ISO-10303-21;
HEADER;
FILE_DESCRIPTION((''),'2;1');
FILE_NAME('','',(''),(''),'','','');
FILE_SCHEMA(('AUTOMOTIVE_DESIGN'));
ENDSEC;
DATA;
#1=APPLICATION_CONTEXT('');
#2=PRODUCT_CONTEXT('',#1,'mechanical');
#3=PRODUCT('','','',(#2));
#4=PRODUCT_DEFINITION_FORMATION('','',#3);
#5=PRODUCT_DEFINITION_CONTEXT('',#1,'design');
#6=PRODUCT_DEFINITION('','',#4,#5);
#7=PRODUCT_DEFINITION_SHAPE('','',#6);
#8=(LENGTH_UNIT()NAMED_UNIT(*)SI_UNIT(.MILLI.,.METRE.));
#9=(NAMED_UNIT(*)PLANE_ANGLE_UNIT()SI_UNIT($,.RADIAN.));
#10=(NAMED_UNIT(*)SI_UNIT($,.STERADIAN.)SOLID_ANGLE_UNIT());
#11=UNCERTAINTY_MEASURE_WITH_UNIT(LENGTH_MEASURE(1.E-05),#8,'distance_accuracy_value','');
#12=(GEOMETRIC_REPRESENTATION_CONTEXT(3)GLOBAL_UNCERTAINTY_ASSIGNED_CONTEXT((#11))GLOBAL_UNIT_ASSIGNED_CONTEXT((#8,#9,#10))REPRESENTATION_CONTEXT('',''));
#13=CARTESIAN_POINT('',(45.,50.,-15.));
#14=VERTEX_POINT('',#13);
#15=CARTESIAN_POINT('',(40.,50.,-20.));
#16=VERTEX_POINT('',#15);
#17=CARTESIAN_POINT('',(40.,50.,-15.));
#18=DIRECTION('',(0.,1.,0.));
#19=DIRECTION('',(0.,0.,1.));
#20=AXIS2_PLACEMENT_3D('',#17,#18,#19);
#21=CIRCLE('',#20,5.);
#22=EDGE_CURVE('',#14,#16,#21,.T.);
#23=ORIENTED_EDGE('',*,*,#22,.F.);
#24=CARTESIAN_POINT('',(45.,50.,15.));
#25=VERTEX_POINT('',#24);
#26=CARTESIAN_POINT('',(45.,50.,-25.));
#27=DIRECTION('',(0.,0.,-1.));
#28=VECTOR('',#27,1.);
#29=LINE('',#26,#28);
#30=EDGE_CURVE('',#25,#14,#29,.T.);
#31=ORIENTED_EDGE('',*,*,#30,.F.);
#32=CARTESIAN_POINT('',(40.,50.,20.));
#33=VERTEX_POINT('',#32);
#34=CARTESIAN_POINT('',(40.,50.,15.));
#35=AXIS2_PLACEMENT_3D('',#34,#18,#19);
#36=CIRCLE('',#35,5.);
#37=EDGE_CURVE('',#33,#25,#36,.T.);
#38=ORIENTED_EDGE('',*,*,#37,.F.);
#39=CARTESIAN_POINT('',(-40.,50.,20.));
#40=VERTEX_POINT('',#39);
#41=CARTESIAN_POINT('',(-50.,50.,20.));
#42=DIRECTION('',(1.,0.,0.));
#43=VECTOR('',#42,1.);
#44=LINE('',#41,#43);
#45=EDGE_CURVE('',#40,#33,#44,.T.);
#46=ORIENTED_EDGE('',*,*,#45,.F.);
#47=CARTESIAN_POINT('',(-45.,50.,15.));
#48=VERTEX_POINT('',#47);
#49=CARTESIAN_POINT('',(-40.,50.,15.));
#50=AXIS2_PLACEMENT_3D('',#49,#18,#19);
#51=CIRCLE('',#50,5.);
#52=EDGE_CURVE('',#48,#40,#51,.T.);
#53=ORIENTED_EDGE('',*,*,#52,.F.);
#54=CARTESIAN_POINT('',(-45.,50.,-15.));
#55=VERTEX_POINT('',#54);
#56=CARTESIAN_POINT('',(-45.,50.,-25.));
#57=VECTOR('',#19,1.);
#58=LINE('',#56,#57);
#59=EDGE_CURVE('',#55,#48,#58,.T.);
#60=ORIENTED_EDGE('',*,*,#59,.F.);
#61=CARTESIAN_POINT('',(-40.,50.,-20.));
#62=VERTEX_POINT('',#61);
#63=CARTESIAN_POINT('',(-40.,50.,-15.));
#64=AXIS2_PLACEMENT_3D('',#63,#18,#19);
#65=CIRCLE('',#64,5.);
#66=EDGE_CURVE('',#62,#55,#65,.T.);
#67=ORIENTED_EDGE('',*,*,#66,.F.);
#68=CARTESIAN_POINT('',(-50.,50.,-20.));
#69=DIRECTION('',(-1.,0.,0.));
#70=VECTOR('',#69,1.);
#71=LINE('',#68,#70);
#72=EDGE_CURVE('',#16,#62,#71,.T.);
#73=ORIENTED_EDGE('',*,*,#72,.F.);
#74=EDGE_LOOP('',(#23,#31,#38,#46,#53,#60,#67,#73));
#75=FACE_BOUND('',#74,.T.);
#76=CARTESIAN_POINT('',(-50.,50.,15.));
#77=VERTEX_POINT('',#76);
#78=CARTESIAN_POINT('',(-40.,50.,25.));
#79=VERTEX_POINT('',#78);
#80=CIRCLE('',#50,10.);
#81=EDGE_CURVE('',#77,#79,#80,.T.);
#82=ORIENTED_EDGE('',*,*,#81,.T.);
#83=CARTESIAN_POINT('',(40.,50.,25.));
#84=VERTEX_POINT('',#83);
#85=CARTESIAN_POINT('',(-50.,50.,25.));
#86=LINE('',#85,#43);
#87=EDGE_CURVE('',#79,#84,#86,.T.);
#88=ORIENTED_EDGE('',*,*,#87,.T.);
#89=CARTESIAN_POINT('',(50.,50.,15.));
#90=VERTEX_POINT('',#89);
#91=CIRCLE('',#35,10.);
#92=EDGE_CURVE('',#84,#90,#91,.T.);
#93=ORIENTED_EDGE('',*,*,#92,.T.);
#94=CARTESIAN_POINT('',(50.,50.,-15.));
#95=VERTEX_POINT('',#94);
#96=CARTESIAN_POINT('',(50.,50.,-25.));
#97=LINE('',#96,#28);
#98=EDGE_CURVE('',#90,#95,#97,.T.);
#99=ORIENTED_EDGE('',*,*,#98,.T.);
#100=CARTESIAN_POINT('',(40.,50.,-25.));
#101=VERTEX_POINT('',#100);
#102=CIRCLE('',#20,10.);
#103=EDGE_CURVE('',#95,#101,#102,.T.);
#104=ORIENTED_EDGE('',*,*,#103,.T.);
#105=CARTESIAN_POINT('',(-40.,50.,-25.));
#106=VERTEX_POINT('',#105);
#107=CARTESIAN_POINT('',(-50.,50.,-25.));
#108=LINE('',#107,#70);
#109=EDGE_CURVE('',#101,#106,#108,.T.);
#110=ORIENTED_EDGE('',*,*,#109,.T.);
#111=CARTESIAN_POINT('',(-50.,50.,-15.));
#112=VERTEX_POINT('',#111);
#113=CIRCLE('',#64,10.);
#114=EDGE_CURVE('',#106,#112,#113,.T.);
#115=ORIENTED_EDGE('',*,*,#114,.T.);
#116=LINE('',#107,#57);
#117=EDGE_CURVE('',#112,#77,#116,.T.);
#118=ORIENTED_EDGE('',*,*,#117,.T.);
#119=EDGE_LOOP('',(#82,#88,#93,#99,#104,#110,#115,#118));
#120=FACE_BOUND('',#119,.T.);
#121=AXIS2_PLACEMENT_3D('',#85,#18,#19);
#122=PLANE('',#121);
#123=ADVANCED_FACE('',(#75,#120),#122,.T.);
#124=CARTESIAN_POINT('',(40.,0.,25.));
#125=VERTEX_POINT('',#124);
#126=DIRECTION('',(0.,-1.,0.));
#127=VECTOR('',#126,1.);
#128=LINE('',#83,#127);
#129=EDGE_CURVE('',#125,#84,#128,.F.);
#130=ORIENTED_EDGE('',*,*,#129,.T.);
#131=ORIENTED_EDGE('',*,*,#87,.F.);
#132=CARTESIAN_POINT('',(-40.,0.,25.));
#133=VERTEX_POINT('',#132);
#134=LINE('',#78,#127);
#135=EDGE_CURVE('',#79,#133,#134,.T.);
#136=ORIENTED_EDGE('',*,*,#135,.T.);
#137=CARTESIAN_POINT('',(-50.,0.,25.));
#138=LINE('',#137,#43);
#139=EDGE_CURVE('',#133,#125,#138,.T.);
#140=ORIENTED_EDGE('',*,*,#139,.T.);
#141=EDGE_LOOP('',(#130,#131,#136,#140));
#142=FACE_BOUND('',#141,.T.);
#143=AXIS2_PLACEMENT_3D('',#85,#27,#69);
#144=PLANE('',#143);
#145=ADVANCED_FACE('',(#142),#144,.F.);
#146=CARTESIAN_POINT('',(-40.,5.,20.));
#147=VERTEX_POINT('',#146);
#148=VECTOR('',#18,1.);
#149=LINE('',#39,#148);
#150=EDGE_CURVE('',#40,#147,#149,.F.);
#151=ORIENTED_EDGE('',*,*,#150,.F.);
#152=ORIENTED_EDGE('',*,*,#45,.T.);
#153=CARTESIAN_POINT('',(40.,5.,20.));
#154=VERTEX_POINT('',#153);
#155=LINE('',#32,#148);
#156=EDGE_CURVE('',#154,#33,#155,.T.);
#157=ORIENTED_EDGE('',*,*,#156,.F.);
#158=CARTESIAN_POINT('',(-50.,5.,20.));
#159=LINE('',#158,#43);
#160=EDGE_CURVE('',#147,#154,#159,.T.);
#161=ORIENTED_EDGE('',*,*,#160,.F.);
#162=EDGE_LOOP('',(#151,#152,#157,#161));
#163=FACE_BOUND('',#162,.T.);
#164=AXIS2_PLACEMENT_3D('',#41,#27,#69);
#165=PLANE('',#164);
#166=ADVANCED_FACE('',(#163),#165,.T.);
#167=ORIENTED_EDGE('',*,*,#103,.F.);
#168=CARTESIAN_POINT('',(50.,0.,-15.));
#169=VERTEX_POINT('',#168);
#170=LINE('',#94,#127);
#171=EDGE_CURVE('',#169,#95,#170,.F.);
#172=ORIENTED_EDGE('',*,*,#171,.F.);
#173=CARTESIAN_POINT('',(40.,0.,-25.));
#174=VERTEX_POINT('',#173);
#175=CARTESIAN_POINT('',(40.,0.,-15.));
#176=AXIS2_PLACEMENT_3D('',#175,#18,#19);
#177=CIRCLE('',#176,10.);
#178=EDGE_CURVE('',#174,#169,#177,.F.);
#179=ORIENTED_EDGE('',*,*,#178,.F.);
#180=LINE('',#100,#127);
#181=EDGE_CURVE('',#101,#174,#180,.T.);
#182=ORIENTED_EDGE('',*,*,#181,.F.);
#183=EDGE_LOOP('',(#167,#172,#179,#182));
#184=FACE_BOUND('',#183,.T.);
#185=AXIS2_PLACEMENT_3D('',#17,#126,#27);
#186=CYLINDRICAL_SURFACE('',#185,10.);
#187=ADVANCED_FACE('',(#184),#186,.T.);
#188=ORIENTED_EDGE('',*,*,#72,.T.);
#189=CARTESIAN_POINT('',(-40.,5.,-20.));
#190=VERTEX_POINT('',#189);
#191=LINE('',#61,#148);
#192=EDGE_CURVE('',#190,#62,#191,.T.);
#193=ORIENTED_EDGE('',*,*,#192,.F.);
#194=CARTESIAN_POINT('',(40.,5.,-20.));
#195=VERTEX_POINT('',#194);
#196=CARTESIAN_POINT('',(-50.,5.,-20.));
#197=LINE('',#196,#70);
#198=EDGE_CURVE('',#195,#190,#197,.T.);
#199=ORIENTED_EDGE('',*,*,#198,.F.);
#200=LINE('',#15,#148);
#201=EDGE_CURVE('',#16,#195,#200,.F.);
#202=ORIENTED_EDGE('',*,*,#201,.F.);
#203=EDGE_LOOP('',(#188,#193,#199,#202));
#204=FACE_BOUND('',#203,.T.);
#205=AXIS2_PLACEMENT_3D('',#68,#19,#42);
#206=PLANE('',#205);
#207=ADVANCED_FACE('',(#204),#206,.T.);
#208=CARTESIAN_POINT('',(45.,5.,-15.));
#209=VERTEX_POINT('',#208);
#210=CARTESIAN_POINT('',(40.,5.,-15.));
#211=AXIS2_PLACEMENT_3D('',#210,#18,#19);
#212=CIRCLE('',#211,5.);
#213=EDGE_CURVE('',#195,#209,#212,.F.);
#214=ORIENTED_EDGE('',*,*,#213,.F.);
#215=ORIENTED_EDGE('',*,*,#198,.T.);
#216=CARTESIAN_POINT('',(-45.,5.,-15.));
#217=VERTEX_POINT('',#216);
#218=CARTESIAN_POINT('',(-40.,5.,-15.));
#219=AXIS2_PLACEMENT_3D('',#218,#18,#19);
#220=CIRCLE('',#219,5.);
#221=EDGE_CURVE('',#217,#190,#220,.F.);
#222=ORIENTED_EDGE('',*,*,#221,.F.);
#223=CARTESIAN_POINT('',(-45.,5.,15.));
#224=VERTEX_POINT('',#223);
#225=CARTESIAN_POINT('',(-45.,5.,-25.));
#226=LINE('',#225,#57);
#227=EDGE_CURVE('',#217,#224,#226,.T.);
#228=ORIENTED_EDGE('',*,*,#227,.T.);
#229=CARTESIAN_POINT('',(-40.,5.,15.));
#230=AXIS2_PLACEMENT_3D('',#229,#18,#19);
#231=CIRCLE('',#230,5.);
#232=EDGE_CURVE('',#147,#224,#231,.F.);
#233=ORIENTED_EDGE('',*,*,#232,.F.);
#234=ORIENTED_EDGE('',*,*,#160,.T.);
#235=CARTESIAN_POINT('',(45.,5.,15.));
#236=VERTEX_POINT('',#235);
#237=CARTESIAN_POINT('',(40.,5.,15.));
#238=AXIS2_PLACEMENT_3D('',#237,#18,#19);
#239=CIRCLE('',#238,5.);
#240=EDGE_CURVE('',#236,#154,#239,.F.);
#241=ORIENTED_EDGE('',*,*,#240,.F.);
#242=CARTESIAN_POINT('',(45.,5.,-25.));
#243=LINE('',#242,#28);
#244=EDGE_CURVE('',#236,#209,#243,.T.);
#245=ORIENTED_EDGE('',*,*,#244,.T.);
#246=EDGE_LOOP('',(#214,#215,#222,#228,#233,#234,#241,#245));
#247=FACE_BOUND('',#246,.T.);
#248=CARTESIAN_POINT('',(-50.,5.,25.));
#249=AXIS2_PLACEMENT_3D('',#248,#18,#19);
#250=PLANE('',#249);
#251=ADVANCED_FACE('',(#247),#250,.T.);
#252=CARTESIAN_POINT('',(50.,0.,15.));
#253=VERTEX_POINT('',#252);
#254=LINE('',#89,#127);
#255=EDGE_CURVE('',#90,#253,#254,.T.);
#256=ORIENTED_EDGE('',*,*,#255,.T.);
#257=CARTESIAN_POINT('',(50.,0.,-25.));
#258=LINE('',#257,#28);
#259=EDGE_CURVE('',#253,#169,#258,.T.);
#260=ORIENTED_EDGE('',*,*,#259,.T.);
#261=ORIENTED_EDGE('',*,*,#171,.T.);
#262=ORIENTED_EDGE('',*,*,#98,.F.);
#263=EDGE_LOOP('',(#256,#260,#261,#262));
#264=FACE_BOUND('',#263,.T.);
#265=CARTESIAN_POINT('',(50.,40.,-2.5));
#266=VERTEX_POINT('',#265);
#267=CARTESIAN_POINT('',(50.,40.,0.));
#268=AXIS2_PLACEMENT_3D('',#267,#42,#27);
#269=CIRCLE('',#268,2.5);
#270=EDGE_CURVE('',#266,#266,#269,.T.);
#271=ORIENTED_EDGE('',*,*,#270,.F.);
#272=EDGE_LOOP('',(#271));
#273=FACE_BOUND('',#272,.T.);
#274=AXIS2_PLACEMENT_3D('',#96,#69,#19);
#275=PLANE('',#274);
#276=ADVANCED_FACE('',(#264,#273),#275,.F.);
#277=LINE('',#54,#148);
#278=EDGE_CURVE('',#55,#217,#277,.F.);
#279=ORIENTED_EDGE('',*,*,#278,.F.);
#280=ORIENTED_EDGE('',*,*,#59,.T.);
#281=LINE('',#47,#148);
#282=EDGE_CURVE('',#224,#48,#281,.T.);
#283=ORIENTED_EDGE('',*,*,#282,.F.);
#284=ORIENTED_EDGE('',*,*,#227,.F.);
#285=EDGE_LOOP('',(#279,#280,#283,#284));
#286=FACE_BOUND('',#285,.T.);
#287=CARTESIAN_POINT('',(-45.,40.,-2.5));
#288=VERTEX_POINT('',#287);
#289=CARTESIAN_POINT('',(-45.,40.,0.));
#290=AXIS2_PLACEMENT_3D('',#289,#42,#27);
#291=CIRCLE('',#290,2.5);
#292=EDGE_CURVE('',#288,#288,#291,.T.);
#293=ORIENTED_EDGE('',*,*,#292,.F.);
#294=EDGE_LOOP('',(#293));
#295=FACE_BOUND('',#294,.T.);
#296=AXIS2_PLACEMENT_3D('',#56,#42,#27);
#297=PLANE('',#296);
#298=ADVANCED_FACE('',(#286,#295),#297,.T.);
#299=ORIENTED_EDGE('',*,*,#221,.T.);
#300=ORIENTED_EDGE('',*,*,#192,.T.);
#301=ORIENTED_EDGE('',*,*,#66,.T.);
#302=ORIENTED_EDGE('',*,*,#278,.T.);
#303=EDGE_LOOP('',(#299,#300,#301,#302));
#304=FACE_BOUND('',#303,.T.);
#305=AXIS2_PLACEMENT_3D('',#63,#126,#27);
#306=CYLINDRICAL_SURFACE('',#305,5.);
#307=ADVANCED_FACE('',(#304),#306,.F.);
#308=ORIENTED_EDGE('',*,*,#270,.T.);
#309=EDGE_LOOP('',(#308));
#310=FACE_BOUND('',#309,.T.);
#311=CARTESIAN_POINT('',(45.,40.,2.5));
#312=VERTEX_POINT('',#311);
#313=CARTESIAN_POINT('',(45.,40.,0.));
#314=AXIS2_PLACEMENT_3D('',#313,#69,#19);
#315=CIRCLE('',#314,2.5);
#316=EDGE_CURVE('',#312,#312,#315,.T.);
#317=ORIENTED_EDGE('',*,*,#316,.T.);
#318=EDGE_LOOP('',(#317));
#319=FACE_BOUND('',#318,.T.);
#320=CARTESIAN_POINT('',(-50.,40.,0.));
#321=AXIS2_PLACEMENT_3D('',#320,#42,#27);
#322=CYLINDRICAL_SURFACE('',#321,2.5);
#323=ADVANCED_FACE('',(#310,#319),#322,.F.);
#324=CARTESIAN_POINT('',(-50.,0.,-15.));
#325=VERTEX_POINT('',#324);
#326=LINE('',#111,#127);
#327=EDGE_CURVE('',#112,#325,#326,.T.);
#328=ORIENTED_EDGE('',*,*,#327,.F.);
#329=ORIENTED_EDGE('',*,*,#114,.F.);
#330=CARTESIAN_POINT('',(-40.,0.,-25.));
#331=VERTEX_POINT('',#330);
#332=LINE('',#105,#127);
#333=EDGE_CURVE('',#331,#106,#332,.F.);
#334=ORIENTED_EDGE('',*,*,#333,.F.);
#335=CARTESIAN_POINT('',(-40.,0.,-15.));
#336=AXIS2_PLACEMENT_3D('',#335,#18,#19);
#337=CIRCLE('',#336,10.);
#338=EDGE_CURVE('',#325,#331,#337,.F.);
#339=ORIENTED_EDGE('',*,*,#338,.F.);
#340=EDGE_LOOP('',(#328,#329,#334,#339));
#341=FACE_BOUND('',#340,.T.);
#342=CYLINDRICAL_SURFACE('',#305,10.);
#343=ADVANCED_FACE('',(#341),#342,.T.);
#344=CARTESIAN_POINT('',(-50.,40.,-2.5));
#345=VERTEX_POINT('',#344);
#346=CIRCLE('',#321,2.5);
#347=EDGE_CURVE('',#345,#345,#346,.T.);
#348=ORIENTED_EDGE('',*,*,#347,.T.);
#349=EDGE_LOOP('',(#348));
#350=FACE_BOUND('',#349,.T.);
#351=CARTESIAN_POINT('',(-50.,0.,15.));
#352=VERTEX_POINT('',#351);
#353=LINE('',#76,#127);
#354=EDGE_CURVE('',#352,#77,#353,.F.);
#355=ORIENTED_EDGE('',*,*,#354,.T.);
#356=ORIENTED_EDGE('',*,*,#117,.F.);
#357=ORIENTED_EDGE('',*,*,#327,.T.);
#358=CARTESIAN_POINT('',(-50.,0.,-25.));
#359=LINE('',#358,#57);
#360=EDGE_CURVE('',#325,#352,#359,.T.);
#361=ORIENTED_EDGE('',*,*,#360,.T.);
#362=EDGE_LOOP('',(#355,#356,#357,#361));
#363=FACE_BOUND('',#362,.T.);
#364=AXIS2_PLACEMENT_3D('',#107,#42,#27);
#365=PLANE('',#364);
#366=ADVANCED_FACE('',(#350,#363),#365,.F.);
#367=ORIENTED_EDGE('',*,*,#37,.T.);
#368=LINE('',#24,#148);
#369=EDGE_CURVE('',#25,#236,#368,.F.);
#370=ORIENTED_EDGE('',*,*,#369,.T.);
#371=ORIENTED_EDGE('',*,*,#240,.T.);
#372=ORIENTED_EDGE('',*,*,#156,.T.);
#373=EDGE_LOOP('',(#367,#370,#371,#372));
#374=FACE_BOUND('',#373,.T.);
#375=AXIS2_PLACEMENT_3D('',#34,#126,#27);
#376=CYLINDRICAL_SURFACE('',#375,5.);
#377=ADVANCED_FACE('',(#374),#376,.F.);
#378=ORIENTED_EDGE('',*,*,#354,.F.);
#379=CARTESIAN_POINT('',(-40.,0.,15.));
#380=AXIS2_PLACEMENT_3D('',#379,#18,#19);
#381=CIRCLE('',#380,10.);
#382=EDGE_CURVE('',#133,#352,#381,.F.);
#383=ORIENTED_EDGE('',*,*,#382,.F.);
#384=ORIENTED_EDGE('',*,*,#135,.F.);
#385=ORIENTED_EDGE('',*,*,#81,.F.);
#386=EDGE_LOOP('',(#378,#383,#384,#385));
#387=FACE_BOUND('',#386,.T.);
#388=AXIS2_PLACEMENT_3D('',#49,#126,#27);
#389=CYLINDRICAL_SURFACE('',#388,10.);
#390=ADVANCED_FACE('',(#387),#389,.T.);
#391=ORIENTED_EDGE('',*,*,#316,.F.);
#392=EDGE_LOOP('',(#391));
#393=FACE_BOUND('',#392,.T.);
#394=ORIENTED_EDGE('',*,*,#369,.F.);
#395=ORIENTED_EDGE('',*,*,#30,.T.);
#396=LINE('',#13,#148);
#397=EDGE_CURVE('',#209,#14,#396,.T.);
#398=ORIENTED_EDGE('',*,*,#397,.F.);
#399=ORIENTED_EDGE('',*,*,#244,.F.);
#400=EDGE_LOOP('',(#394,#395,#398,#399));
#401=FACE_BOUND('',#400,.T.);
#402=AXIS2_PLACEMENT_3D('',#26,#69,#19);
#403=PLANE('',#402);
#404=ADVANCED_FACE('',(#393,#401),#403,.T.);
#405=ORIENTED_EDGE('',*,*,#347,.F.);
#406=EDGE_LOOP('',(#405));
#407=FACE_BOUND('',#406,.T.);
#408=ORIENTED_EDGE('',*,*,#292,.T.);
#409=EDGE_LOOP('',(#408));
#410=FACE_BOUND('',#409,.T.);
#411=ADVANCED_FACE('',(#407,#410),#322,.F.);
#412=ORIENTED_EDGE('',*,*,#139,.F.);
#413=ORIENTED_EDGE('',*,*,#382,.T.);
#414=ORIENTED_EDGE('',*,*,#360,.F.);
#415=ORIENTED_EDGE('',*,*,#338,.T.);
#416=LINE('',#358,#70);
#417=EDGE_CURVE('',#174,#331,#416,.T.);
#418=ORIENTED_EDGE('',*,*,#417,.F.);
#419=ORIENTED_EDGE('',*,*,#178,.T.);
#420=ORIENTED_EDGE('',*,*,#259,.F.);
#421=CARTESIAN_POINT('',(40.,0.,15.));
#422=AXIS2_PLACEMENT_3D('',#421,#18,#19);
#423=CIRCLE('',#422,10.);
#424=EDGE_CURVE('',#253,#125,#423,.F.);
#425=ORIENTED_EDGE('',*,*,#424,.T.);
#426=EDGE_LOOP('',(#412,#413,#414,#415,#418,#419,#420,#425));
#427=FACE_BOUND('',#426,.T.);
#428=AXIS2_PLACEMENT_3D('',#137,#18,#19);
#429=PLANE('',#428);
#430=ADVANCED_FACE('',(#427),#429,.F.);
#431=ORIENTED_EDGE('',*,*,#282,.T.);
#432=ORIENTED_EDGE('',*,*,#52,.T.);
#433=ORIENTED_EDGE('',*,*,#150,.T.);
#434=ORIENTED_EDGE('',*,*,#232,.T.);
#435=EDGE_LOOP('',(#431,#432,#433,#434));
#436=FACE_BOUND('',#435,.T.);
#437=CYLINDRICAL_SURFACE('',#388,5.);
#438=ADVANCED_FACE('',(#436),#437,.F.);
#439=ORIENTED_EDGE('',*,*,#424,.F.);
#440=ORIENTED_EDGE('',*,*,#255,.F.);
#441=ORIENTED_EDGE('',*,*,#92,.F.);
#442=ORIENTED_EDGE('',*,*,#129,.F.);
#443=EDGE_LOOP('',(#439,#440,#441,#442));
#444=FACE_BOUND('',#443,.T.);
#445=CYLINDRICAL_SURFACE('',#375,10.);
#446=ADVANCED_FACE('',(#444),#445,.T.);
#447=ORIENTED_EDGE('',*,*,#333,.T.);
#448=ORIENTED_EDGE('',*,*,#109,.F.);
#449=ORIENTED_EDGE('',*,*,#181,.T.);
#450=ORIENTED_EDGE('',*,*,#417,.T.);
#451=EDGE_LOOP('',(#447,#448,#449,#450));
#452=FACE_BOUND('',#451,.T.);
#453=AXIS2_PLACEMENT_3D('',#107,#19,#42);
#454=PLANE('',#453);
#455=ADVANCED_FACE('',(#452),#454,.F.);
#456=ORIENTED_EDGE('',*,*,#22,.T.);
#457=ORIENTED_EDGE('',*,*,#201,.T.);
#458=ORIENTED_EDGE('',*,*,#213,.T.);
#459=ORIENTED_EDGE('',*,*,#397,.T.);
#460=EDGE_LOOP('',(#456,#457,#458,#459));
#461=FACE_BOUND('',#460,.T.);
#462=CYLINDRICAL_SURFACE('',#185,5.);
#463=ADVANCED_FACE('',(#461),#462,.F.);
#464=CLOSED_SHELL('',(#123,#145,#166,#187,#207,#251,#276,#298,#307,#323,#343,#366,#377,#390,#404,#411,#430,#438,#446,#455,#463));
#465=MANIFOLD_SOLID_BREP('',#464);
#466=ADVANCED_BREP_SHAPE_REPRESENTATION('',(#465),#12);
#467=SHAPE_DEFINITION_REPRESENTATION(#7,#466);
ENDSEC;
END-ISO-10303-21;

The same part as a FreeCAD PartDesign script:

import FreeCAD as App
import Part
import Sketcher


def edges_at(feature, points):
    """Names of the edges that pass closest to the given points."""
    edges = feature.Shape.Edges
    near = lambda p: min(range(len(edges)), key=lambda i: edges[i].distToShape(Part.Vertex(*p))[0])
    return sorted({f"Edge{near(p) + 1}" for p in points})


def faces_at(feature, points):
    """Names of the faces that lie closest to the given points."""
    faces = feature.Shape.Faces
    near = lambda p: min(range(len(faces)), key=lambda i: faces[i].distToShape(Part.Vertex(*p))[0])
    return sorted({f"Face{near(p) + 1}" for p in points})

doc = App.newDocument("Part")
params = doc.addObject("Spreadsheet::Sheet", "Params")
for row, (alias, value) in enumerate([
    ("sketch1_width", "100 mm"),
    ("sketch1_height", "50 mm"),
    ("pad1_length", "50 mm"),
    ("fillet_radius", "10 mm"),
    ("thickness_wall", "5 mm"),
    ("sketch2_diameter", "5 mm"),
], start=1):
    params.set(f"A{row}", alias)
    params.set(f"B{row}", "=" + value)
    params.setAlias(f"B{row}", alias)

body = doc.addObject("PartDesign::Body", "Body")

# Sketch on XZ plane
sketch1 = body.newObject("Sketcher::SketchObject", "Sketch")
sketch1.AttachmentSupport = (doc.getObject("XZ_Plane"), [""])
sketch1.MapMode = "FlatFace"
sketch1.addGeometry(Part.LineSegment(App.Vector(-50, -25, 0), App.Vector(-50, 25, 0)), False)
sketch1.addGeometry(Part.LineSegment(App.Vector(-50, 25, 0), App.Vector(50, 25, 0)), False)
sketch1.addGeometry(Part.LineSegment(App.Vector(50, 25, 0), App.Vector(50, -25, 0)), False)
sketch1.addGeometry(Part.LineSegment(App.Vector(50, -25, 0), App.Vector(-50, -25, 0)), False)
sketch1.addConstraint(Sketcher.Constraint("Coincident", 0, 2, 1, 1))
sketch1.addConstraint(Sketcher.Constraint("Coincident", 1, 2, 2, 1))
sketch1.addConstraint(Sketcher.Constraint("Coincident", 2, 2, 3, 1))
sketch1.addConstraint(Sketcher.Constraint("Coincident", 3, 2, 0, 1))
sketch1.addConstraint(Sketcher.Constraint("Vertical", 0))
sketch1.addConstraint(Sketcher.Constraint("Horizontal", 1))
sketch1.addConstraint(Sketcher.Constraint("Vertical", 2))
sketch1.addConstraint(Sketcher.Constraint("Horizontal", 3))
sketch1.addConstraint(Sketcher.Constraint("Symmetric", 0, 2, 2, 2, -1, 1))
sketch1.addConstraint(Sketcher.Constraint("DistanceX", 1, 1, 1, 2, 100.0))
sketch1.addConstraint(Sketcher.Constraint("DistanceY", 0, 1, 0, 2, 50.0))
sketch1.setExpression("Constraints[9]", "Params.sketch1_width")
sketch1.setExpression("Constraints[10]", "Params.sketch1_height")
pad1 = body.newObject("PartDesign::Pad", "Pad")
pad1.Profile = sketch1
pad1.setExpression("Length", "Params.pad1_length")
pad1.Reversed = True
doc.recompute()

fillet = body.newObject("PartDesign::Fillet", "Fillet")
fillet.Base = (pad1, edges_at(pad1, [
    (-50, 25, -25),
    (50, 25, -25),
    (50, 25, 25),
    (-50, 25, 25),
]))
fillet.setExpression("Radius", "Params.fillet_radius")
doc.recompute()

thickness = body.newObject("PartDesign::Thickness", "Thickness")
thickness.Base = (fillet, faces_at(fillet, [(0, 50, 0)]))
thickness.setExpression("Value", "Params.thickness_wall")
thickness.Reversed = True
thickness.Join = "Intersection"

# Sketch on YZ plane
sketch2 = body.newObject("Sketcher::SketchObject", "Sketch001")
sketch2.AttachmentSupport = (doc.getObject("YZ_Plane"), [""])
sketch2.MapMode = "FlatFace"
sketch2.AttachmentOffset = App.Placement(App.Vector(0, 0, 50), App.Rotation())
sketch2.addGeometry(Part.Circle(App.Vector(40, 0, 0), App.Vector(0, 0, 1), 2.5), False)
sketch2.addConstraint(Sketcher.Constraint("PointOnObject", 0, 3, -1))
sketch2.addConstraint(Sketcher.Constraint("Diameter", 0, 5.0))
sketch2.addConstraint(Sketcher.Constraint("DistanceX", -1, 1, 0, 3, 40.0))
sketch2.setExpression("Constraints[1]", "Params.sketch2_diameter")
pocket1 = body.newObject("PartDesign::Pocket", "Pocket")
pocket1.Profile = sketch2
pocket1.Type = "ThroughAll"

doc.recompute()
